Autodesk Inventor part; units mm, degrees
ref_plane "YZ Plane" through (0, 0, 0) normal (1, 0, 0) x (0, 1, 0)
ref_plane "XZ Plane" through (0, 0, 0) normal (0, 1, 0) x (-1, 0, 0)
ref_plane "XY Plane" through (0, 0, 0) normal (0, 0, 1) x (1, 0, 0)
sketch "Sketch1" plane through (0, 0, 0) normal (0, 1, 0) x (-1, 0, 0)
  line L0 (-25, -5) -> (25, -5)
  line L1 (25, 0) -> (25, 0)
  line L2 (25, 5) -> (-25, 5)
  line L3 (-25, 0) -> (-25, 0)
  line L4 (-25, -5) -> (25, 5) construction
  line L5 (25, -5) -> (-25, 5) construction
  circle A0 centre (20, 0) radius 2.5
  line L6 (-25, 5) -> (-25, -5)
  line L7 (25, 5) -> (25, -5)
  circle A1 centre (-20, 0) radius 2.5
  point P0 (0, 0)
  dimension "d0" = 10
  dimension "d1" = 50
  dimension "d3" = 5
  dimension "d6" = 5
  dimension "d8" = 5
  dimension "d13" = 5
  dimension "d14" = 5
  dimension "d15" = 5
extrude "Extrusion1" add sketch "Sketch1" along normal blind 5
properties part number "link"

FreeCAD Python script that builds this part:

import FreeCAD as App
import Part
import Sketcher

V = App.Vector

doc = App.newDocument("Part")
body = doc.addObject("PartDesign::Body", "Body")

# Sketch on XZ plane
sketch1 = body.newObject("Sketcher::SketchObject", "Sketch")
sketch1.AttachmentSupport = (doc.getObject("XZ_Plane"), [""])
sketch1.MapMode = "FlatFace"
sketch1.addGeometry(Part.LineSegment(V(25, 5, 0), V(25, -5, 0)), False)
sketch1.addGeometry(Part.LineSegment(V(25, -5, 0), V(-25, -5, 0)), False)
sketch1.addGeometry(Part.LineSegment(V(-25, -5, 0), V(-25, 5, 0)), False)
sketch1.addGeometry(Part.LineSegment(V(-25, 5, 0), V(25, 5, 0)), False)
sketch1.addGeometry(Part.Circle(V(20, 0, 0), V(0, 0, 1), 2.5), False)
sketch1.addGeometry(Part.Circle(V(-20, 0, 0), V(0, 0, 1), 2.5), False)
sketch1.addConstraint(Sketcher.Constraint("Coincident", 0, 2, 1, 1))
sketch1.addConstraint(Sketcher.Constraint("Coincident", 1, 2, 2, 1))
sketch1.addConstraint(Sketcher.Constraint("Coincident", 2, 2, 3, 1))
sketch1.addConstraint(Sketcher.Constraint("Coincident", 3, 2, 0, 1))
sketch1.addConstraint(Sketcher.Constraint("Vertical", 0))
sketch1.addConstraint(Sketcher.Constraint("Horizontal", 1))
sketch1.addConstraint(Sketcher.Constraint("Vertical", 2))
sketch1.addConstraint(Sketcher.Constraint("Horizontal", 3))
sketch1.addConstraint(Sketcher.Constraint("Equal", 4, 5))
sketch1.addConstraint(Sketcher.Constraint("Symmetric", 4, 3, 5, 3, -1, 1))
sketch1.addConstraint(Sketcher.Constraint("Symmetric", 0, 2, 2, 2, -1, 1))
sketch1.addConstraint(Sketcher.Constraint("PointOnObject", 4, 3, -1))
sketch1.addConstraint(Sketcher.Constraint("Diameter", 4, 5.0))
sketch1.addConstraint(Sketcher.Constraint("DistanceX", 1, 2, 1, 1, 50.0))
sketch1.addConstraint(Sketcher.Constraint("DistanceY", 0, 2, 0, 1, 10.0))
sketch1.addConstraint(Sketcher.Constraint("DistanceX", 4, 3, 0, 2, 5.0))
pad1 = body.newObject("PartDesign::Pad", "Pad")
pad1.Profile = sketch1
pad1.Length = 5
pad1.Reversed = True

doc.recompute()
